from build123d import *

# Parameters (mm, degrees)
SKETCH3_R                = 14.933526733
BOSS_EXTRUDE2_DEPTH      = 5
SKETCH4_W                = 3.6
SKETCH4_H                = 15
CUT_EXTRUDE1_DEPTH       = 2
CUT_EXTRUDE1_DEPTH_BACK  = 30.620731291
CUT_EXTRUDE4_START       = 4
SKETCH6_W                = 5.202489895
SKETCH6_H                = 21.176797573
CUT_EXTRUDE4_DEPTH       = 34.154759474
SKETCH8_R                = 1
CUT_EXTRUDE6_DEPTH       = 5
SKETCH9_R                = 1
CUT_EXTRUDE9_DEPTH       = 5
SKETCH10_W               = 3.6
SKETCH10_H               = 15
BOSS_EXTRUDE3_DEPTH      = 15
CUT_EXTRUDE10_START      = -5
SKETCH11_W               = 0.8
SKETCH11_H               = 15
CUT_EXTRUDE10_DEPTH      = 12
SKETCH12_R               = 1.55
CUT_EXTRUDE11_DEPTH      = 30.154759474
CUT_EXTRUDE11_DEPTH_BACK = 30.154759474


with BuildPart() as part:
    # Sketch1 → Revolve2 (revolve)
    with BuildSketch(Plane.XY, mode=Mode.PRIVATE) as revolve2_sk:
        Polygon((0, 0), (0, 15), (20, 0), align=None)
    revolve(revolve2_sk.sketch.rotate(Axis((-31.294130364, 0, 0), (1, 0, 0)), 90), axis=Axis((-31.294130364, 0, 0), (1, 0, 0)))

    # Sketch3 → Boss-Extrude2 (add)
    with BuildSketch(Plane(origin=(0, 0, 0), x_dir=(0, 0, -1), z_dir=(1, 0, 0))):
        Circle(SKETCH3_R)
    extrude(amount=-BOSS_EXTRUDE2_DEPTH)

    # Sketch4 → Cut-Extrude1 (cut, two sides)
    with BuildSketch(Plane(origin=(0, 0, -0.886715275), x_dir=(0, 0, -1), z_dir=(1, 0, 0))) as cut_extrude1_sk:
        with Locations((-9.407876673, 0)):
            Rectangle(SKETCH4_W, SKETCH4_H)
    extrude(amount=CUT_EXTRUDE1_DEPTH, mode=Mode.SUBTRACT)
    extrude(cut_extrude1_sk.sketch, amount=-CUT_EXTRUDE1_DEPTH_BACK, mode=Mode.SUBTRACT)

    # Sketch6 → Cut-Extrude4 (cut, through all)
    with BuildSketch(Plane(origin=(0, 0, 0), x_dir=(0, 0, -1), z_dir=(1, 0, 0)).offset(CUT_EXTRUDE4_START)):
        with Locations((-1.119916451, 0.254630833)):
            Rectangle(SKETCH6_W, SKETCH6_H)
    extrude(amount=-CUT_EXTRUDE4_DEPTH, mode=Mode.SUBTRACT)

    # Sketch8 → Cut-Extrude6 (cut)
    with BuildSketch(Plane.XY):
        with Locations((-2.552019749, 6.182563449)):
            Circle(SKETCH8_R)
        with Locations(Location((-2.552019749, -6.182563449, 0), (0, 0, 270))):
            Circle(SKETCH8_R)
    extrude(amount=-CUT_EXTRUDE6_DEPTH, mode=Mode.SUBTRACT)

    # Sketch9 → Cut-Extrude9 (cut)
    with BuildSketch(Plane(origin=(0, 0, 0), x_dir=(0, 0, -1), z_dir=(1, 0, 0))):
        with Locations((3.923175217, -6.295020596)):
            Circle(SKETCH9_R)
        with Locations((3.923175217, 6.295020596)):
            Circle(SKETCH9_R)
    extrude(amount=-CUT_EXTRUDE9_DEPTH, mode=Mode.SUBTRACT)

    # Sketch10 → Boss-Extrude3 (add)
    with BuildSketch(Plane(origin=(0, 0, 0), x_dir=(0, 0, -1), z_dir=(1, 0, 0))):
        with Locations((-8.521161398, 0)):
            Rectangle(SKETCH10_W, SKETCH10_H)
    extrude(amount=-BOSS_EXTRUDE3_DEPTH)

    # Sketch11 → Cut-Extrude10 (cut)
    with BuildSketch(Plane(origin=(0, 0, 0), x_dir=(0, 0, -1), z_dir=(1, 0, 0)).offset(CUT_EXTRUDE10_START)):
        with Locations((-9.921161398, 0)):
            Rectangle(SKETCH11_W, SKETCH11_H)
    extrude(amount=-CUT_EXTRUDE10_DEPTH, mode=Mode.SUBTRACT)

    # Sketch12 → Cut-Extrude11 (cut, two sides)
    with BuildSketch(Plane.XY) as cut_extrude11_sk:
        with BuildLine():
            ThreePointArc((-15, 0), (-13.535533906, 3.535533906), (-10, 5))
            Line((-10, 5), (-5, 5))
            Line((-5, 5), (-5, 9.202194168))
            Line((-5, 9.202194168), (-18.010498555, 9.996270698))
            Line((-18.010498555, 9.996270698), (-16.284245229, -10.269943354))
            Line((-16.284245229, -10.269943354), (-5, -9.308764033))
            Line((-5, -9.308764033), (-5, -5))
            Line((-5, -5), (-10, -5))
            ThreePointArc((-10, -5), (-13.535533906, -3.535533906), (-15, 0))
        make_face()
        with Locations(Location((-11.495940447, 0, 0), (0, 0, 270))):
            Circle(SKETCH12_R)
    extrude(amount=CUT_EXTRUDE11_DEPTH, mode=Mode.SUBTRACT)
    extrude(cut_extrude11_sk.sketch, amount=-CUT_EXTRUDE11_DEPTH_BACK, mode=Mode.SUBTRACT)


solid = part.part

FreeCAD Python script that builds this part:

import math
import FreeCAD as App
import Part
import Sketcher
from FreeCAD import Vector

doc = App.newDocument("Part")
body = doc.addObject("PartDesign::Body", "Body")

# Sketch on XY plane
sketch1 = body.newObject("Sketcher::SketchObject", "Sketch")
sketch1.AttachmentSupport = (doc.getObject("XY_Plane"), [""])
sketch1.MapMode = "FlatFace"
sketch1.addGeometry(Part.LineSegment(Vector(0, 15, 0), Vector(0, 0, 0)), False)
sketch1.addGeometry(Part.LineSegment(Vector(0, 0, 0), Vector(20, 0, 0)), False)
sketch1.addGeometry(Part.LineSegment(Vector(20, 0, 0), Vector(0, 15, 0)), False)
sketch1.addConstraint(Sketcher.Constraint("Coincident", 0, 2, 1, 1))
sketch1.addConstraint(Sketcher.Constraint("Coincident", 1, 2, 2, 1))
sketch1.addConstraint(Sketcher.Constraint("Coincident", 2, 2, 0, 1))
sketch1.addConstraint(Sketcher.Constraint("Vertical", 0))
sketch1.addConstraint(Sketcher.Constraint("Horizontal", 1))
sketch1.addConstraint(Sketcher.Constraint("Coincident", 0, 2, -1, 1))
sketch1.addConstraint(Sketcher.Constraint("DistanceX", 1, 1, 1, 2, 20.0))
sketch1.addConstraint(Sketcher.Constraint("DistanceY", 0, 2, 0, 1, 15.0))
revolution = body.newObject("PartDesign::Revolution", "Revolution")
revolution.Profile = sketch1
revolution.ReferenceAxis = (sketch1, ["H_Axis"])
revolution.Angle = 360

# Sketch on YZ plane
sketch2 = body.newObject("Sketcher::SketchObject", "Sketch001")
sketch2.AttachmentSupport = (doc.getObject("YZ_Plane"), [""])
sketch2.MapMode = "FlatFace"
sketch2.addGeometry(Part.Circle(Vector(0, 0, 0), Vector(0, 0, 1), 15), False)
sketch2.addConstraint(Sketcher.Constraint("Coincident", 0, 3, -1, 1))
sketch2.addConstraint(Sketcher.Constraint("Diameter", 0, 29.867053))
pad1 = body.newObject("PartDesign::Pad", "Pad")
pad1.Profile = sketch2
pad1.Length = 5
pad1.Reversed = True

# Sketch on YZ plane
sketch3 = body.newObject("Sketcher::SketchObject", "Sketch002")
sketch3.AttachmentSupport = (doc.getObject("YZ_Plane"), [""])
sketch3.MapMode = "FlatFace"
sketch3.addGeometry(Part.LineSegment(Vector(7.5, 10.3, 0), Vector(-7.5, 10.3, 0)), False)
sketch3.addGeometry(Part.LineSegment(Vector(-7.5, 10.3, 0), Vector(-7.5, 6.7, 0)), False)
sketch3.addGeometry(Part.LineSegment(Vector(-7.5, 6.7, 0), Vector(7.5, 6.7, 0)), False)
sketch3.addGeometry(Part.LineSegment(Vector(7.5, 6.7, 0), Vector(7.5, 10.3, 0)), False)
sketch3.addConstraint(Sketcher.Constraint("Coincident", 0, 2, 1, 1))
sketch3.addConstraint(Sketcher.Constraint("Coincident", 1, 2, 2, 1))
sketch3.addConstraint(Sketcher.Constraint("Coincident", 2, 2, 3, 1))
sketch3.addConstraint(Sketcher.Constraint("Coincident", 3, 2, 0, 1))
sketch3.addConstraint(Sketcher.Constraint("Horizontal", 0))
sketch3.addConstraint(Sketcher.Constraint("Vertical", 1))
sketch3.addConstraint(Sketcher.Constraint("Horizontal", 2))
sketch3.addConstraint(Sketcher.Constraint("Vertical", 3))
sketch3.addConstraint(Sketcher.Constraint("DistanceX", 0, 2, 0, 1, 15.0))
sketch3.addConstraint(Sketcher.Constraint("DistanceY", 1, 2, 1, 1, 3.6))
sketch3.addConstraint(Sketcher.Constraint("DistanceX", 0, 2, -1, 1, 7.5))
sketch3.addConstraint(Sketcher.Constraint("DistanceY", -1, 1, 0, 2, 10.321161))
pocket1 = body.newObject("PartDesign::Pocket", "Pocket")
pocket1.Profile = sketch3
pocket1.Type = "TwoLengths"
pocket1.Length = 2
pocket1.Length2 = 30.620731
pocket1.Reversed = True

# Sketch on YZ plane
sketch4 = body.newObject("Sketcher::SketchObject", "Sketch003")
sketch4.AttachmentSupport = (doc.getObject("YZ_Plane"), [""])
sketch4.MapMode = "FlatFace"
sketch4.AttachmentOffset = App.Placement(Vector(0, 0, 4), App.Rotation())
sketch4.addGeometry(Part.LineSegment(Vector(11, 4, 0), Vector(-10, 4, 0)), False)
sketch4.addGeometry(Part.LineSegment(Vector(-10, 4, 0), Vector(-10, -1, 0)), False)
sketch4.addGeometry(Part.LineSegment(Vector(-10, -1, 0), Vector(11, -1, 0)), False)
sketch4.addGeometry(Part.LineSegment(Vector(11, -1, 0), Vector(11, 4, 0)), False)
sketch4.addConstraint(Sketcher.Constraint("Coincident", 0, 2, 1, 1))
sketch4.addConstraint(Sketcher.Constraint("Coincident", 1, 2, 2, 1))
sketch4.addConstraint(Sketcher.Constraint("Coincident", 2, 2, 3, 1))
sketch4.addConstraint(Sketcher.Constraint("Coincident", 3, 2, 0, 1))
sketch4.addConstraint(Sketcher.Constraint("Horizontal", 0))
sketch4.addConstraint(Sketcher.Constraint("Vertical", 1))
sketch4.addConstraint(Sketcher.Constraint("Horizontal", 2))
sketch4.addConstraint(Sketcher.Constraint("Vertical", 3))
sketch4.addConstraint(Sketcher.Constraint("DistanceY", 1, 2, 1, 1, 5.20249))
sketch4.addConstraint(Sketcher.Constraint("DistanceX", 0, 2, 0, 1, 21.176798))
sketch4.addConstraint(Sketcher.Constraint("DistanceY", -1, 1, 0, 2, 3.721161))
sketch4.addConstraint(Sketcher.Constraint("DistanceX", -1, 1, 2, 2, 10.84303))
pocket2 = body.newObject("PartDesign::Pocket", "Pocket001")
pocket2.Profile = sketch4
pocket2.Type = "ThroughAll"

# Sketch on XY plane
sketch5 = body.newObject("Sketcher::SketchObject", "Sketch004")
sketch5.AttachmentSupport = (doc.getObject("XY_Plane"), [""])
sketch5.MapMode = "FlatFace"
sketch5.addGeometry(Part.Circle(Vector(-2.6, 6.2, 0), Vector(0, 0, 1), 1), False)
sketch5.addGeometry(Part.Circle(Vector(-2.6, -6.2, 0), Vector(0, 0, 1), 1), False)
sketch5.addConstraint(Sketcher.Constraint("Equal", 0, 1))
sketch5.addConstraint(Sketcher.Constraint("Symmetric", 0, 3, 1, 3, -1))
sketch5.addConstraint(Sketcher.Constraint("Diameter", 0, 2.0))
sketch5.addConstraint(Sketcher.Constraint("DistanceX", 0, 3, -1, 1, 2.55202))
sketch5.addConstraint(Sketcher.Constraint("DistanceY", -1, 1, 0, 3, 6.182563))
pocket3 = body.newObject("PartDesign::Pocket", "Pocket002")
pocket3.Profile = sketch5
pocket3.Length = 5

# Sketch on YZ plane
sketch6 = body.newObject("Sketcher::SketchObject", "Sketch005")
sketch6.AttachmentSupport = (doc.getObject("YZ_Plane"), [""])
sketch6.MapMode = "FlatFace"
sketch6.addGeometry(Part.Circle(Vector(-6.3, -3.9, 0), Vector(0, 0, 1), 1), False)
sketch6.addGeometry(Part.Circle(Vector(6.3, -3.9, 0), Vector(0, 0, 1), 1), False)
sketch6.addConstraint(Sketcher.Constraint("Equal", 0, 1))
sketch6.addConstraint(Sketcher.Constraint("Symmetric", 0, 3, 1, 3, -2))
sketch6.addConstraint(Sketcher.Constraint("Diameter", 0, 2.0))
sketch6.addConstraint(Sketcher.Constraint("DistanceX", 0, 3, -1, 1, 6.295021))
sketch6.addConstraint(Sketcher.Constraint("DistanceY", 0, 3, -1, 1, 3.923175))
pocket4 = body.newObject("PartDesign::Pocket", "Pocket003")
pocket4.Profile = sketch6
pocket4.Length = 5

# Sketch on YZ plane
sketch7 = body.newObject("Sketcher::SketchObject", "Sketch006")
sketch7.AttachmentSupport = (doc.getObject("YZ_Plane"), [""])
sketch7.MapMode = "FlatFace"
sketch7.addGeometry(Part.LineSegment(Vector(7.5, 10.3, 0), Vector(-7.5, 10.3, 0)), False)
sketch7.addGeometry(Part.LineSegment(Vector(-7.5, 10.3, 0), Vector(-7.5, 6.7, 0)), False)
sketch7.addGeometry(Part.LineSegment(Vector(-7.5, 6.7, 0), Vector(7.5, 6.7, 0)), False)
sketch7.addGeometry(Part.LineSegment(Vector(7.5, 6.7, 0), Vector(7.5, 10.3, 0)), False)
sketch7.addConstraint(Sketcher.Constraint("Coincident", 0, 2, 1, 1))
sketch7.addConstraint(Sketcher.Constraint("Coincident", 1, 2, 2, 1))
sketch7.addConstraint(Sketcher.Constraint("Coincident", 2, 2, 3, 1))
sketch7.addConstraint(Sketcher.Constraint("Coincident", 3, 2, 0, 1))
sketch7.addConstraint(Sketcher.Constraint("Horizontal", 0))
sketch7.addConstraint(Sketcher.Constraint("Vertical", 1))
sketch7.addConstraint(Sketcher.Constraint("Horizontal", 2))
sketch7.addConstraint(Sketcher.Constraint("Vertical", 3))
sketch7.addConstraint(Sketcher.Constraint("DistanceX", 0, 2, 0, 1, 15.0))
sketch7.addConstraint(Sketcher.Constraint("DistanceY", 1, 2, 1, 1, 3.6))
sketch7.addConstraint(Sketcher.Constraint("DistanceX", 0, 2, -1, 1, 7.5))
sketch7.addConstraint(Sketcher.Constraint("DistanceY", -1, 1, 0, 2, 10.321161))
pad2 = body.newObject("PartDesign::Pad", "Pad001")
pad2.Profile = sketch7
pad2.Length = 15
pad2.Reversed = True

# Sketch on YZ plane
sketch8 = body.newObject("Sketcher::SketchObject", "Sketch007")
sketch8.AttachmentSupport = (doc.getObject("YZ_Plane"), [""])
sketch8.MapMode = "FlatFace"
sketch8.AttachmentOffset = App.Placement(Vector(0, 0, -5), App.Rotation())
sketch8.addGeometry(Part.LineSegment(Vector(7.5, 10.3, 0), Vector(-7.5, 10.3, 0)), False)
sketch8.addGeometry(Part.LineSegment(Vector(-7.5, 10.3, 0), Vector(-7.5, 9.5, 0)), False)
sketch8.addGeometry(Part.LineSegment(Vector(-7.5, 9.5, 0), Vector(7.5, 9.5, 0)), False)
sketch8.addGeometry(Part.LineSegment(Vector(7.5, 9.5, 0), Vector(7.5, 10.3, 0)), False)
sketch8.addConstraint(Sketcher.Constraint("Coincident", 0, 2, 1, 1))
sketch8.addConstraint(Sketcher.Constraint("Coincident", 1, 2, 2, 1))
sketch8.addConstraint(Sketcher.Constraint("Coincident", 2, 2, 3, 1))
sketch8.addConstraint(Sketcher.Constraint("Coincident", 3, 2, 0, 1))
sketch8.addConstraint(Sketcher.Constraint("Horizontal", 0))
sketch8.addConstraint(Sketcher.Constraint("Vertical", 1))
sketch8.addConstraint(Sketcher.Constraint("Horizontal", 2))
sketch8.addConstraint(Sketcher.Constraint("Vertical", 3))
sketch8.addConstraint(Sketcher.Constraint("DistanceX", 0, 2, 0, 1, 15.0))
sketch8.addConstraint(Sketcher.Constraint("DistanceY", 1, 2, 1, 1, 0.8))
sketch8.addConstraint(Sketcher.Constraint("DistanceX", 0, 2, -1, 1, 7.5))
sketch8.addConstraint(Sketcher.Constraint("DistanceY", -1, 1, 0, 2, 10.321161))
pocket5 = body.newObject("PartDesign::Pocket", "Pocket004")
pocket5.Profile = sketch8
pocket5.Length = 12

# Sketch on XY plane
sketch9 = body.newObject("Sketcher::SketchObject", "Sketch008")
sketch9.AttachmentSupport = (doc.getObject("XY_Plane"), [""])
sketch9.MapMode = "FlatFace"
sketch9.addGeometry(Part.ArcOfCircle(Part.Circle(Vector(-10, 0, 0), Vector(0, 0, 1), 5), math.radians(90), math.radians(180)), False)
sketch9.addGeometry(Part.LineSegment(Vector(-10, 5, 0), Vector(-5, 5, 0)), False)
sketch9.addGeometry(Part.LineSegment(Vector(-5, 5, 0), Vector(-5, 9.2, 0)), False)
sketch9.addGeometry(Part.LineSegment(Vector(-5, 9.2, 0), Vector(-18, 10, 0)), False)
sketch9.addGeometry(Part.LineSegment(Vector(-18, 10, 0), Vector(-16.3, -10.3, 0)), False)
sketch9.addGeometry(Part.LineSegment(Vector(-16.3, -10.3, 0), Vector(-5, -9.3, 0)), False)
sketch9.addGeometry(Part.LineSegment(Vector(-5, -9.3, 0), Vector(-5, -5, 0)), False)
sketch9.addGeometry(Part.LineSegment(Vector(-5, -5, 0), Vector(-10, -5, 0)), False)
sketch9.addGeometry(Part.ArcOfCircle(Part.Circle(Vector(-10, 0, 0), Vector(0, 0, 1), 5), math.radians(180), math.radians(270)), False)
sketch9.addGeometry(Part.Circle(Vector(-11.5, 0, 0), Vector(0, 0, 1), 1.6), False)
sketch9.addConstraint(Sketcher.Constraint("Tangent", 0, 1, 1, 1))
sketch9.addConstraint(Sketcher.Constraint("Coincident", 1, 2, 2, 1))
sketch9.addConstraint(Sketcher.Constraint("Coincident", 2, 2, 3, 1))
sketch9.addConstraint(Sketcher.Constraint("Coincident", 3, 2, 4, 1))
sketch9.addConstraint(Sketcher.Constraint("Coincident", 4, 2, 5, 1))
sketch9.addConstraint(Sketcher.Constraint("Coincident", 5, 2, 6, 1))
sketch9.addConstraint(Sketcher.Constraint("Coincident", 6, 2, 7, 1))
sketch9.addConstraint(Sketcher.Constraint("Tangent", 7, 2, 8, 2))
sketch9.addConstraint(Sketcher.Constraint("Tangent", 8, 1, 0, 2))
sketch9.addConstraint(Sketcher.Constraint("Horizontal", 1))
sketch9.addConstraint(Sketcher.Constraint("Vertical", 2))
sketch9.addConstraint(Sketcher.Constraint("Vertical", 6))
sketch9.addConstraint(Sketcher.Constraint("Horizontal", 7))
sketch9.addConstraint(Sketcher.Constraint("Equal", 0, 8))
sketch9.addConstraint(Sketcher.Constraint("Symmetric", 1, 2, 6, 2, -1))
sketch9.addConstraint(Sketcher.Constraint("PointOnObject", 9, 3, -1))
sketch9.addConstraint(Sketcher.Constraint("PointOnObject", 8, 1, -1))
sketch9.addConstraint(Sketcher.Constraint("Perpendicular", 4, 5))
sketch9.addConstraint(Sketcher.Constraint("Radius", 0, 5.0))
sketch9.addConstraint(Sketcher.Constraint("Diameter", 9, 3.1))
sketch9.addConstraint(Sketcher.Constraint("DistanceX", 1, 1, 1, 2, 5.0))
sketch9.addConstraint(Sketcher.Constraint("DistanceX", 0, 3, -1, 1, 10.0))
sketch9.addConstraint(Sketcher.Constraint("Distance", 4, 20.339601))
sketch9.addConstraint(Sketcher.Constraint("DistanceX", 3, 2, -1, 1, 18.010499))
sketch9.addConstraint(Sketcher.Constraint("Distance", 3, 13.034709))
sketch9.addConstraint(Sketcher.Constraint("DistanceY", 2, 1, 2, 2, 4.202194))
sketch9.addConstraint(Sketcher.Constraint("DistanceY", 6, 1, 6, 2, 4.308764))
sketch9.addConstraint(Sketcher.Constraint("DistanceX", 9, 3, -1, 1, 11.49594))
pocket6 = body.newObject("PartDesign::Pocket", "Pocket005")
pocket6.Profile = sketch9
pocket6.Type = "ThroughAll"
pocket6.Midplane = True

doc.recompute()
